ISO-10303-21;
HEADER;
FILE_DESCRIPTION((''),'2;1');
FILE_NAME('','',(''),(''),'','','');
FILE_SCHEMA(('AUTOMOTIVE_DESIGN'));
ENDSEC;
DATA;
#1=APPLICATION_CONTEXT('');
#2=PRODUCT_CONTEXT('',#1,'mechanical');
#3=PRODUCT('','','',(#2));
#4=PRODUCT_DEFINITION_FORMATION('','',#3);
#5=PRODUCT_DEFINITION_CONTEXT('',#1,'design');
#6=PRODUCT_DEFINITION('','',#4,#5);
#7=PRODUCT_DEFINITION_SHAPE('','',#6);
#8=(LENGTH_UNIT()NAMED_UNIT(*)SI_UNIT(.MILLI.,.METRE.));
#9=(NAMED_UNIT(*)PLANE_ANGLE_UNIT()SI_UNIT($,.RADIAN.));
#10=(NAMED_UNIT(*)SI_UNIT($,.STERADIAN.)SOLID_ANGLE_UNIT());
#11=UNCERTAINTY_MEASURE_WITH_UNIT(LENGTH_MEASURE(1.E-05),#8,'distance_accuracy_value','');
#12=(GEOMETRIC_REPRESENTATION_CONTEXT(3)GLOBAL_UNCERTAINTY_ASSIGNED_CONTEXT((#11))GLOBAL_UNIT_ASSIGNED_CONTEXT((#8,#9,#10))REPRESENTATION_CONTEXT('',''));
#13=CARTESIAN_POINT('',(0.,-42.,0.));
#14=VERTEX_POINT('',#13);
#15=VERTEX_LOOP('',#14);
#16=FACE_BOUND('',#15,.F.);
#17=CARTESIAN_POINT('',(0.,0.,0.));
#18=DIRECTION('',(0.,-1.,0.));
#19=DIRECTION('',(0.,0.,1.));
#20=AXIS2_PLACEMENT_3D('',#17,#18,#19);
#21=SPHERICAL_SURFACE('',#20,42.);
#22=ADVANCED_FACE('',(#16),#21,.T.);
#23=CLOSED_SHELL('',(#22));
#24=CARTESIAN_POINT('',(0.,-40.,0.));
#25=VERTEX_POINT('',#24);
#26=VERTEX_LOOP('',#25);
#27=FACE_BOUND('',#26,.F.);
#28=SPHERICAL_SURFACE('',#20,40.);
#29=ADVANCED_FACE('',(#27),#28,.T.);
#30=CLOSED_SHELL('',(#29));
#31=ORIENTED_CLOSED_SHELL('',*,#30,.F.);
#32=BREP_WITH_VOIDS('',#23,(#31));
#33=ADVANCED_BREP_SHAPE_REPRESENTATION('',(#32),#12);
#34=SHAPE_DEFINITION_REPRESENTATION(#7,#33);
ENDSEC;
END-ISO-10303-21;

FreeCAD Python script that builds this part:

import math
import FreeCAD as App
import Part
import Sketcher

V = App.Vector
Q = App.Units.Quantity

doc = App.newDocument("Part")
body = doc.addObject("PartDesign::Body", "Body")

sketch1 = body.newObject("Sketcher::SketchObject", "Sketch")
sketch1.AttachmentSupport = (doc.getObject("YZ_Plane"), [""])
sketch1.MapMode = "FlatFace"
sketch1.addGeometry([
    Part.LineSegment(V(40, 0, 0), V(42, 0, 0)),
    Part.ArcOfCircle(Part.Circle(V(0, 0, 0), V(0, 0, 1), 42), math.radians(0), math.radians(180)),
    Part.LineSegment(V(-42, 0, 0), V(-40, 0, 0)),
    Part.ArcOfCircle(Part.Circle(V(0, 0, 0), V(0, 0, 1), 40), math.radians(0), math.radians(180)),
], False)
sketch1.addConstraint([
    Sketcher.Constraint("Coincident", 0, 2, 1, 1),
    Sketcher.Constraint("Coincident", 1, 2, 2, 1),
    Sketcher.Constraint("Coincident", 2, 2, 3, 2),
    Sketcher.Constraint("Coincident", 3, 1, 0, 1),
    Sketcher.Constraint("Horizontal", 0),
    Sketcher.Constraint("Horizontal", 2),
    Sketcher.Constraint("Coincident", 1, 3, -1, 1),
    Sketcher.Constraint("Coincident", 3, 3, -1, 1),
    Sketcher.Constraint("PointOnObject", 0, 2, -1),
    Sketcher.Constraint("PointOnObject", 1, 2, -1),
    Sketcher.Constraint("Radius", 1, Q("42 mm")),
    Sketcher.Constraint("Radius", 3, Q("40 mm")),
])
revolution = body.newObject("PartDesign::Revolution", "Revolution")
revolution.Profile = sketch1
revolution.ReferenceAxis = (sketch1, ["H_Axis"])
revolution.Angle = 360

doc.recompute()
